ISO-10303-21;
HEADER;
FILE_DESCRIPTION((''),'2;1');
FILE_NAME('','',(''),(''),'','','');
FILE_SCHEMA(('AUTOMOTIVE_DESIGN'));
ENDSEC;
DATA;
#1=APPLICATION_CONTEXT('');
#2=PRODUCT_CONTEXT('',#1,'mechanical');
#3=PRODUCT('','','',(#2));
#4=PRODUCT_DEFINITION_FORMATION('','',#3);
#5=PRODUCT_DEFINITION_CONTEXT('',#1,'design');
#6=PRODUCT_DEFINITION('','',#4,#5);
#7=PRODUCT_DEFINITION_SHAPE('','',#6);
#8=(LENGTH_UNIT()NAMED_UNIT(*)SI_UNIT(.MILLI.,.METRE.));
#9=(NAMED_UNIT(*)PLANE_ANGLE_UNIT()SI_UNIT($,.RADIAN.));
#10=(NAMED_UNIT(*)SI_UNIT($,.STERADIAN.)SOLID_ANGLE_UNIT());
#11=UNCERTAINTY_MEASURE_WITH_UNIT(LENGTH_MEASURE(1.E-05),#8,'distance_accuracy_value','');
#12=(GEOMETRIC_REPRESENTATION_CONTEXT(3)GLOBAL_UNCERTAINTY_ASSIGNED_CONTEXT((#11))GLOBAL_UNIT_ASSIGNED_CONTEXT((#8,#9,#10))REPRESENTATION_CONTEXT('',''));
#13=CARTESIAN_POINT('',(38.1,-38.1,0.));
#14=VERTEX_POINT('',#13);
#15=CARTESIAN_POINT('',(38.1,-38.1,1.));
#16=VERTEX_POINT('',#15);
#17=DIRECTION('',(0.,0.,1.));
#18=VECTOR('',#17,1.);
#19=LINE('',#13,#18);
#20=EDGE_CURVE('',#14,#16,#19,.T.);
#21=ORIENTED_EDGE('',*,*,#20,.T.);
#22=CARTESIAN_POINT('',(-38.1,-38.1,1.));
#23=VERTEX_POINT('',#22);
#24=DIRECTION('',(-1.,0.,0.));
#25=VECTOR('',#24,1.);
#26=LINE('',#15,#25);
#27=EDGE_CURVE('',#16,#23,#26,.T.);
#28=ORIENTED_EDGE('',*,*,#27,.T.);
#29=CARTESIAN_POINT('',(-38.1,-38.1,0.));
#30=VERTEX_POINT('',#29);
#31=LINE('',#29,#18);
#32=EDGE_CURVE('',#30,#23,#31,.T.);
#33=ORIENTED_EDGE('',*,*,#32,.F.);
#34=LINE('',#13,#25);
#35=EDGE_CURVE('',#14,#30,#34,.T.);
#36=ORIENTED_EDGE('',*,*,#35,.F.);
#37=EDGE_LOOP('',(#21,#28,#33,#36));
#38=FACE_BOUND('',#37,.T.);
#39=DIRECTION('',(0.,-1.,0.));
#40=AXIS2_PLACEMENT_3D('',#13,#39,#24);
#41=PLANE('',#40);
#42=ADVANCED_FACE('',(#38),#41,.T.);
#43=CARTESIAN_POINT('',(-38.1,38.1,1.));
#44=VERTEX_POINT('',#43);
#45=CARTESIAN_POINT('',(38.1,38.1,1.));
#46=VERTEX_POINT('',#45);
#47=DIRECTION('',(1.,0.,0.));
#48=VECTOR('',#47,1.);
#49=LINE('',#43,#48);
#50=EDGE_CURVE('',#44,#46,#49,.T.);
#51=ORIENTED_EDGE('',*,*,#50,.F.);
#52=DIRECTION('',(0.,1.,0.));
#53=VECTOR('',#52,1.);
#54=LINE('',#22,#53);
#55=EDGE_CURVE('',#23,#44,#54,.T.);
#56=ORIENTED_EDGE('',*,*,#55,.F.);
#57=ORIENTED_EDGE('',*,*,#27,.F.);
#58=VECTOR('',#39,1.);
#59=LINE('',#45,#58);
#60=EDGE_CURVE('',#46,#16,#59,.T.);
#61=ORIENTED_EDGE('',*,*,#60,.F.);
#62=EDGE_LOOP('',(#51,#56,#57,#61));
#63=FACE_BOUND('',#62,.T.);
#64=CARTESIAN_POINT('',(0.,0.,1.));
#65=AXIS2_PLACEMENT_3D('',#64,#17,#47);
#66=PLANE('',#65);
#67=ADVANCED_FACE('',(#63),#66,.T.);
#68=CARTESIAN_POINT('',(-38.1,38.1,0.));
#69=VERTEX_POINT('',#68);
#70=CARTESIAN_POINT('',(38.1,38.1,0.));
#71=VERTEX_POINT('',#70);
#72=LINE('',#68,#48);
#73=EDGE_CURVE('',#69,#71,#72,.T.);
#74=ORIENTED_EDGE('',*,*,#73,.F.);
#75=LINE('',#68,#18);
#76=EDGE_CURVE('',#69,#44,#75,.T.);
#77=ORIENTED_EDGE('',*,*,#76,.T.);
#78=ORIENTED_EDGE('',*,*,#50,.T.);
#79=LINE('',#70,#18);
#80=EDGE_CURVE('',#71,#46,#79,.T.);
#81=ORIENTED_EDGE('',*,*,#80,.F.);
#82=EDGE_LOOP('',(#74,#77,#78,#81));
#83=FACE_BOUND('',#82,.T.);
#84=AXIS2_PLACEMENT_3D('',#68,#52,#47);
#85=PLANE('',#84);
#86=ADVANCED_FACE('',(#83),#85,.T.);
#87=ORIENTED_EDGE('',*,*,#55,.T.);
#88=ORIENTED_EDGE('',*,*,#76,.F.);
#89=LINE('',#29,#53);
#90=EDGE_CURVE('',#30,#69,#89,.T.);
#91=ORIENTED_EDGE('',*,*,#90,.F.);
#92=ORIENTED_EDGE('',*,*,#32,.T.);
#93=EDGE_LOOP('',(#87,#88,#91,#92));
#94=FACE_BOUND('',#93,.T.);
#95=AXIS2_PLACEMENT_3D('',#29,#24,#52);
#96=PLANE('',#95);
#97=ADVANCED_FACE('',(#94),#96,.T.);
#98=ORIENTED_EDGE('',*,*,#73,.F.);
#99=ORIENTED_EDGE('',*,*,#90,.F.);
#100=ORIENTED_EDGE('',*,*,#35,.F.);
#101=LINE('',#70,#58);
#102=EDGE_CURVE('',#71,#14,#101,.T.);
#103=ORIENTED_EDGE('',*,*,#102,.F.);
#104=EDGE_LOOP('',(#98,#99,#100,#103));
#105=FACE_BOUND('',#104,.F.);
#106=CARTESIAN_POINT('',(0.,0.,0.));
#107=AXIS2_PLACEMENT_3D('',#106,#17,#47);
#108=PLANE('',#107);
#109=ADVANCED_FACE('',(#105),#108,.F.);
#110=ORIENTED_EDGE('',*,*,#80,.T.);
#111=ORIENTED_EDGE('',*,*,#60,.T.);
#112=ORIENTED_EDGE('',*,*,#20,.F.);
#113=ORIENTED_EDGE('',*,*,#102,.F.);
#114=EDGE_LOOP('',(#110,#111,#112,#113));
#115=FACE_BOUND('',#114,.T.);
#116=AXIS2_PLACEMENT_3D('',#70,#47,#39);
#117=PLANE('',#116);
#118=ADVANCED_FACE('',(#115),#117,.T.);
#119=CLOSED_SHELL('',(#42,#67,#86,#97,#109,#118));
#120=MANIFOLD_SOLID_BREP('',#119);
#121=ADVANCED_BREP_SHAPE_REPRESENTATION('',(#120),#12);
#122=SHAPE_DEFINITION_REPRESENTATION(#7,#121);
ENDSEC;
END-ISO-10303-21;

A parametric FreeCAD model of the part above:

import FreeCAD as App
import Part
import Sketcher

V = App.Vector
Q = App.Units.Quantity


def add_polygon(sketch, points):
    """Adds a closed chain of lines whose ends are joined by coincident constraints."""
    first, n = sketch.GeometryCount, len(points)
    for a, b in zip(points, points[1:] + points[:1]):
        sketch.addGeometry(Part.LineSegment(App.Vector(*a, 0), App.Vector(*b, 0)), False)
    for i in range(n):
        sketch.addConstraint(Sketcher.Constraint("Coincident", first + i, 2, first + (i + 1) % n, 1))

doc = App.newDocument("Part")
params = doc.addObject("Spreadsheet::Sheet", "Params")
for row, (alias, value) in enumerate([
    ("sketch1_width", "76.2 mm"),
    ("pad1_length", "1 mm"),
], start=1):
    params.set(f"A{row}", alias)
    params.set(f"B{row}", "=" + value)
    params.setAlias(f"B{row}", alias)

body = doc.addObject("PartDesign::Body", "Body")

# Sketch on XY plane
sketch1 = doc.addObject("Sketcher::SketchObject", "Sketch")
body.addObject(sketch1)
sketch1.AttachmentSupport = (doc.XY_Plane, [""])
sketch1.MapMode = "FlatFace"
add_polygon(sketch1, [(38, 38), (-38, 38), (-38, -38), (38, -38)])  # lines 0-3
sketch1.addConstraint([
    Sketcher.Constraint("Horizontal", 0),
    Sketcher.Constraint("Vertical", 1),
    Sketcher.Constraint("Horizontal", 2),
    Sketcher.Constraint("Vertical", 3),
    Sketcher.Constraint("Symmetric", 0, 2, 2, 2, -1, 1),
    Sketcher.Constraint("Equal", 2, 1),
    Sketcher.Constraint("DistanceX", 0, 2, 0, 1, Q("76.2 mm")),
])
sketch1.setExpression("Constraints[10]", "Params.sketch1_width")
pad1 = doc.addObject("PartDesign::Pad", "Pad")
body.addObject(pad1)
pad1.Profile = sketch1
pad1.setExpression("Length", "Params.pad1_length")

doc.recompute()
